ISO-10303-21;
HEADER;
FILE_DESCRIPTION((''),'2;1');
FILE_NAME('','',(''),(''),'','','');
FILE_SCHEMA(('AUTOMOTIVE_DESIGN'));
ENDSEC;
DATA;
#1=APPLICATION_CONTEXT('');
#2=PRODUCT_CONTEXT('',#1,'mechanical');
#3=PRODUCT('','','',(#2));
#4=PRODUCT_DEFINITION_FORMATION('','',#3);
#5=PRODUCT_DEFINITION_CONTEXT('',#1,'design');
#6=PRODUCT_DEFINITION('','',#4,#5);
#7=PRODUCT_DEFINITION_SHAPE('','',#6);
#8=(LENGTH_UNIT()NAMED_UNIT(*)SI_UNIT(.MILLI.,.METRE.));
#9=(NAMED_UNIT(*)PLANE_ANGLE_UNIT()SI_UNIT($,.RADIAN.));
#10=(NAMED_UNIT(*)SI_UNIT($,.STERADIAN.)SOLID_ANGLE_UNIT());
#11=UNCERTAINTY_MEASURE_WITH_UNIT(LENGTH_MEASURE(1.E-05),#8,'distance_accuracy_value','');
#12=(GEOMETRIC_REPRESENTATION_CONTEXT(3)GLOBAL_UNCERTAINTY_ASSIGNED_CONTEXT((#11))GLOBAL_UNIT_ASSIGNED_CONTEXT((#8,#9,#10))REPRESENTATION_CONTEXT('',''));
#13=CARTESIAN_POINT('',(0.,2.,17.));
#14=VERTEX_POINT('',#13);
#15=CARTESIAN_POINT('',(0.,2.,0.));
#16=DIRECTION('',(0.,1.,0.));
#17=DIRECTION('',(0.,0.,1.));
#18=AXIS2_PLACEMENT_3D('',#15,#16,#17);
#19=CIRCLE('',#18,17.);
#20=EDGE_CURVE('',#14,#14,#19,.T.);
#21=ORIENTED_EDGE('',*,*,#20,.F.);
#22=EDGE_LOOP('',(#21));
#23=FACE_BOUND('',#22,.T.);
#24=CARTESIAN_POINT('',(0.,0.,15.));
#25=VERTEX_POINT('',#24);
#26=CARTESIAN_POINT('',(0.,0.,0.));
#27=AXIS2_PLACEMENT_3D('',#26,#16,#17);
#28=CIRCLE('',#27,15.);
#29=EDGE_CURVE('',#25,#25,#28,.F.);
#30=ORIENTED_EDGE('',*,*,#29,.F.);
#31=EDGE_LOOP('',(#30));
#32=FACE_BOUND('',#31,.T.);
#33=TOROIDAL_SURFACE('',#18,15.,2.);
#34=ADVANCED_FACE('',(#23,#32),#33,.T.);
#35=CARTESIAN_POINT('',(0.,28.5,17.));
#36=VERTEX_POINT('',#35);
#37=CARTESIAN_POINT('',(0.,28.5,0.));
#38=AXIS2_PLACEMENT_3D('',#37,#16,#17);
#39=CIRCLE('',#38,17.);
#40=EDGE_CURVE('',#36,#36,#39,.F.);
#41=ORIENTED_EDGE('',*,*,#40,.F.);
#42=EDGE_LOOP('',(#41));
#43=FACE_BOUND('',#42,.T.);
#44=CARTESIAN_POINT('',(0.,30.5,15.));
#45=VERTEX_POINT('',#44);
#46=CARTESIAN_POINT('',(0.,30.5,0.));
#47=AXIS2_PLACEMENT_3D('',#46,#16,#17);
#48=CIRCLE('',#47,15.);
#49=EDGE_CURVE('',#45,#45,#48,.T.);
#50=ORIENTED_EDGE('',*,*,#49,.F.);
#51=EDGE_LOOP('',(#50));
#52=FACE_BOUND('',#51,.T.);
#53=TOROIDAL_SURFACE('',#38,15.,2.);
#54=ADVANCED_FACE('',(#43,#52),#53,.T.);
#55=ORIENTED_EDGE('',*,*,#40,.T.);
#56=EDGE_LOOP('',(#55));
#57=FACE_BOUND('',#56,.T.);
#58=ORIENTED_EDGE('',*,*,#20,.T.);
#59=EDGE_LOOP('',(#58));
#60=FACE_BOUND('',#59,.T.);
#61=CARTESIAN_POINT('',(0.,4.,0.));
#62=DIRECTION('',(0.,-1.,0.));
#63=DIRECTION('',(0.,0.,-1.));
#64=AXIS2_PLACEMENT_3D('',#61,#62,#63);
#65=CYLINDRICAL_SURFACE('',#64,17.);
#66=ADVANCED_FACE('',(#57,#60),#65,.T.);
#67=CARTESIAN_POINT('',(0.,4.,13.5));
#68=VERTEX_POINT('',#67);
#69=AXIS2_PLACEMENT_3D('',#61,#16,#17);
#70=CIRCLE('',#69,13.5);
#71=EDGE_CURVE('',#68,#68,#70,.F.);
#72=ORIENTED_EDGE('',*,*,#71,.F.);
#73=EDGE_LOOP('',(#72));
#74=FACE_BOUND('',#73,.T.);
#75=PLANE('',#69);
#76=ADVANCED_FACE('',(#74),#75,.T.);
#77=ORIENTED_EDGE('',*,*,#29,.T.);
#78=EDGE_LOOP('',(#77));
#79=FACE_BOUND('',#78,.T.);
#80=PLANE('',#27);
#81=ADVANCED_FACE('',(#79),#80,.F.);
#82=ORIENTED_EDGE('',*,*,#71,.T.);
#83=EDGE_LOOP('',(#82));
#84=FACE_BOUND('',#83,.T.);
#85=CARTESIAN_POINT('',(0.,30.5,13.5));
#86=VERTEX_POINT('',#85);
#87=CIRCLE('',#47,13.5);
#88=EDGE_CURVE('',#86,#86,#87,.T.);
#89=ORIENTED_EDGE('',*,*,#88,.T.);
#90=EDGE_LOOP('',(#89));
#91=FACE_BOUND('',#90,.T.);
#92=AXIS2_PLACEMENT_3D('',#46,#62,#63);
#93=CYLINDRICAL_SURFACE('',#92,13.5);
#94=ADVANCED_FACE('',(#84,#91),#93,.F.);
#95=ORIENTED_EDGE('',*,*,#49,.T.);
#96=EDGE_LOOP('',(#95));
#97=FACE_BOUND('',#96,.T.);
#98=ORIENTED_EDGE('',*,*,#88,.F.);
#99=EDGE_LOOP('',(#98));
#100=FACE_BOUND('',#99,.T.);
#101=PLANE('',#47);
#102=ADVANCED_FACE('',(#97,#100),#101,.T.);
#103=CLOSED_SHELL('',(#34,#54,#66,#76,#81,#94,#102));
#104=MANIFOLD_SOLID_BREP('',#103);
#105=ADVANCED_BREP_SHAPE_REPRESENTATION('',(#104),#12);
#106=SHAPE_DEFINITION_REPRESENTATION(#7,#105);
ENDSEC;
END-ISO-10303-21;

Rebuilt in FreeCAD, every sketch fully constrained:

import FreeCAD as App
import Part
import Sketcher
from FreeCAD import Vector
Q = App.Units.Quantity


def edges_at(feature, points):
    """Names of the edges that pass closest to the given points."""
    edges = feature.Shape.Edges
    near = lambda p: min(range(len(edges)), key=lambda i: edges[i].distToShape(Part.Vertex(*p))[0])
    return sorted({f"Edge{near(p) + 1}" for p in points})

doc = App.newDocument("Part")
body = doc.addObject("PartDesign::Body", "Body")

# Sketch on XZ plane
sketch1 = doc.addObject("Sketcher::SketchObject", "Sketch")
body.addObject(sketch1)
sketch1.AttachmentSupport = (doc.XZ_Plane, [""])
sketch1.MapMode = "FlatFace"
sketch1.addGeometry(Part.Circle(Vector(0, 0, 0), Vector(0, 0, 1), 17), False)
sketch1.addConstraint([
    Sketcher.Constraint("Coincident", 0, 3, -1, 1),
    Sketcher.Constraint("Diameter", 0, Q("34 mm")),
])
pad1 = doc.addObject("PartDesign::Pad", "Pad")
body.addObject(pad1)
pad1.Profile = sketch1
pad1.Length = 4
pad1.Reversed = True

# Sketch on XZ plane
sketch2 = doc.addObject("Sketcher::SketchObject", "Sketch001")
body.addObject(sketch2)
sketch2.AttachmentSupport = (doc.XZ_Plane, [""])
sketch2.MapMode = "FlatFace"
sketch2.AttachmentOffset = App.Placement(Vector(0, 0, -4), App.Rotation())
sketch2.addGeometry([
    Part.Circle(Vector(0, 0, 0), Vector(0, 0, 1), 17),
    Part.Circle(Vector(0, 0, 0), Vector(0, 0, 1), 14),
], False)
sketch2.addConstraint([
    Sketcher.Constraint("Coincident", 0, 3, -1, 1),
    Sketcher.Constraint("Coincident", 1, 3, -1, 1),
    Sketcher.Constraint("Diameter", 0, Q("34 mm")),
    Sketcher.Constraint("Diameter", 1, Q("27 mm")),
])
pad2 = doc.addObject("PartDesign::Pad", "Pad001")
body.addObject(pad2)
pad2.Profile = sketch2
pad2.Length = 26.5
pad2.Reversed = True
doc.recompute()

fillet = doc.addObject("PartDesign::Fillet", "Fillet")
body.addObject(fillet)
fillet.Base = (pad2, edges_at(pad2, [(0, 0, -17), (0, 30.5, -17)]))
fillet.Radius = 2

doc.recompute()
